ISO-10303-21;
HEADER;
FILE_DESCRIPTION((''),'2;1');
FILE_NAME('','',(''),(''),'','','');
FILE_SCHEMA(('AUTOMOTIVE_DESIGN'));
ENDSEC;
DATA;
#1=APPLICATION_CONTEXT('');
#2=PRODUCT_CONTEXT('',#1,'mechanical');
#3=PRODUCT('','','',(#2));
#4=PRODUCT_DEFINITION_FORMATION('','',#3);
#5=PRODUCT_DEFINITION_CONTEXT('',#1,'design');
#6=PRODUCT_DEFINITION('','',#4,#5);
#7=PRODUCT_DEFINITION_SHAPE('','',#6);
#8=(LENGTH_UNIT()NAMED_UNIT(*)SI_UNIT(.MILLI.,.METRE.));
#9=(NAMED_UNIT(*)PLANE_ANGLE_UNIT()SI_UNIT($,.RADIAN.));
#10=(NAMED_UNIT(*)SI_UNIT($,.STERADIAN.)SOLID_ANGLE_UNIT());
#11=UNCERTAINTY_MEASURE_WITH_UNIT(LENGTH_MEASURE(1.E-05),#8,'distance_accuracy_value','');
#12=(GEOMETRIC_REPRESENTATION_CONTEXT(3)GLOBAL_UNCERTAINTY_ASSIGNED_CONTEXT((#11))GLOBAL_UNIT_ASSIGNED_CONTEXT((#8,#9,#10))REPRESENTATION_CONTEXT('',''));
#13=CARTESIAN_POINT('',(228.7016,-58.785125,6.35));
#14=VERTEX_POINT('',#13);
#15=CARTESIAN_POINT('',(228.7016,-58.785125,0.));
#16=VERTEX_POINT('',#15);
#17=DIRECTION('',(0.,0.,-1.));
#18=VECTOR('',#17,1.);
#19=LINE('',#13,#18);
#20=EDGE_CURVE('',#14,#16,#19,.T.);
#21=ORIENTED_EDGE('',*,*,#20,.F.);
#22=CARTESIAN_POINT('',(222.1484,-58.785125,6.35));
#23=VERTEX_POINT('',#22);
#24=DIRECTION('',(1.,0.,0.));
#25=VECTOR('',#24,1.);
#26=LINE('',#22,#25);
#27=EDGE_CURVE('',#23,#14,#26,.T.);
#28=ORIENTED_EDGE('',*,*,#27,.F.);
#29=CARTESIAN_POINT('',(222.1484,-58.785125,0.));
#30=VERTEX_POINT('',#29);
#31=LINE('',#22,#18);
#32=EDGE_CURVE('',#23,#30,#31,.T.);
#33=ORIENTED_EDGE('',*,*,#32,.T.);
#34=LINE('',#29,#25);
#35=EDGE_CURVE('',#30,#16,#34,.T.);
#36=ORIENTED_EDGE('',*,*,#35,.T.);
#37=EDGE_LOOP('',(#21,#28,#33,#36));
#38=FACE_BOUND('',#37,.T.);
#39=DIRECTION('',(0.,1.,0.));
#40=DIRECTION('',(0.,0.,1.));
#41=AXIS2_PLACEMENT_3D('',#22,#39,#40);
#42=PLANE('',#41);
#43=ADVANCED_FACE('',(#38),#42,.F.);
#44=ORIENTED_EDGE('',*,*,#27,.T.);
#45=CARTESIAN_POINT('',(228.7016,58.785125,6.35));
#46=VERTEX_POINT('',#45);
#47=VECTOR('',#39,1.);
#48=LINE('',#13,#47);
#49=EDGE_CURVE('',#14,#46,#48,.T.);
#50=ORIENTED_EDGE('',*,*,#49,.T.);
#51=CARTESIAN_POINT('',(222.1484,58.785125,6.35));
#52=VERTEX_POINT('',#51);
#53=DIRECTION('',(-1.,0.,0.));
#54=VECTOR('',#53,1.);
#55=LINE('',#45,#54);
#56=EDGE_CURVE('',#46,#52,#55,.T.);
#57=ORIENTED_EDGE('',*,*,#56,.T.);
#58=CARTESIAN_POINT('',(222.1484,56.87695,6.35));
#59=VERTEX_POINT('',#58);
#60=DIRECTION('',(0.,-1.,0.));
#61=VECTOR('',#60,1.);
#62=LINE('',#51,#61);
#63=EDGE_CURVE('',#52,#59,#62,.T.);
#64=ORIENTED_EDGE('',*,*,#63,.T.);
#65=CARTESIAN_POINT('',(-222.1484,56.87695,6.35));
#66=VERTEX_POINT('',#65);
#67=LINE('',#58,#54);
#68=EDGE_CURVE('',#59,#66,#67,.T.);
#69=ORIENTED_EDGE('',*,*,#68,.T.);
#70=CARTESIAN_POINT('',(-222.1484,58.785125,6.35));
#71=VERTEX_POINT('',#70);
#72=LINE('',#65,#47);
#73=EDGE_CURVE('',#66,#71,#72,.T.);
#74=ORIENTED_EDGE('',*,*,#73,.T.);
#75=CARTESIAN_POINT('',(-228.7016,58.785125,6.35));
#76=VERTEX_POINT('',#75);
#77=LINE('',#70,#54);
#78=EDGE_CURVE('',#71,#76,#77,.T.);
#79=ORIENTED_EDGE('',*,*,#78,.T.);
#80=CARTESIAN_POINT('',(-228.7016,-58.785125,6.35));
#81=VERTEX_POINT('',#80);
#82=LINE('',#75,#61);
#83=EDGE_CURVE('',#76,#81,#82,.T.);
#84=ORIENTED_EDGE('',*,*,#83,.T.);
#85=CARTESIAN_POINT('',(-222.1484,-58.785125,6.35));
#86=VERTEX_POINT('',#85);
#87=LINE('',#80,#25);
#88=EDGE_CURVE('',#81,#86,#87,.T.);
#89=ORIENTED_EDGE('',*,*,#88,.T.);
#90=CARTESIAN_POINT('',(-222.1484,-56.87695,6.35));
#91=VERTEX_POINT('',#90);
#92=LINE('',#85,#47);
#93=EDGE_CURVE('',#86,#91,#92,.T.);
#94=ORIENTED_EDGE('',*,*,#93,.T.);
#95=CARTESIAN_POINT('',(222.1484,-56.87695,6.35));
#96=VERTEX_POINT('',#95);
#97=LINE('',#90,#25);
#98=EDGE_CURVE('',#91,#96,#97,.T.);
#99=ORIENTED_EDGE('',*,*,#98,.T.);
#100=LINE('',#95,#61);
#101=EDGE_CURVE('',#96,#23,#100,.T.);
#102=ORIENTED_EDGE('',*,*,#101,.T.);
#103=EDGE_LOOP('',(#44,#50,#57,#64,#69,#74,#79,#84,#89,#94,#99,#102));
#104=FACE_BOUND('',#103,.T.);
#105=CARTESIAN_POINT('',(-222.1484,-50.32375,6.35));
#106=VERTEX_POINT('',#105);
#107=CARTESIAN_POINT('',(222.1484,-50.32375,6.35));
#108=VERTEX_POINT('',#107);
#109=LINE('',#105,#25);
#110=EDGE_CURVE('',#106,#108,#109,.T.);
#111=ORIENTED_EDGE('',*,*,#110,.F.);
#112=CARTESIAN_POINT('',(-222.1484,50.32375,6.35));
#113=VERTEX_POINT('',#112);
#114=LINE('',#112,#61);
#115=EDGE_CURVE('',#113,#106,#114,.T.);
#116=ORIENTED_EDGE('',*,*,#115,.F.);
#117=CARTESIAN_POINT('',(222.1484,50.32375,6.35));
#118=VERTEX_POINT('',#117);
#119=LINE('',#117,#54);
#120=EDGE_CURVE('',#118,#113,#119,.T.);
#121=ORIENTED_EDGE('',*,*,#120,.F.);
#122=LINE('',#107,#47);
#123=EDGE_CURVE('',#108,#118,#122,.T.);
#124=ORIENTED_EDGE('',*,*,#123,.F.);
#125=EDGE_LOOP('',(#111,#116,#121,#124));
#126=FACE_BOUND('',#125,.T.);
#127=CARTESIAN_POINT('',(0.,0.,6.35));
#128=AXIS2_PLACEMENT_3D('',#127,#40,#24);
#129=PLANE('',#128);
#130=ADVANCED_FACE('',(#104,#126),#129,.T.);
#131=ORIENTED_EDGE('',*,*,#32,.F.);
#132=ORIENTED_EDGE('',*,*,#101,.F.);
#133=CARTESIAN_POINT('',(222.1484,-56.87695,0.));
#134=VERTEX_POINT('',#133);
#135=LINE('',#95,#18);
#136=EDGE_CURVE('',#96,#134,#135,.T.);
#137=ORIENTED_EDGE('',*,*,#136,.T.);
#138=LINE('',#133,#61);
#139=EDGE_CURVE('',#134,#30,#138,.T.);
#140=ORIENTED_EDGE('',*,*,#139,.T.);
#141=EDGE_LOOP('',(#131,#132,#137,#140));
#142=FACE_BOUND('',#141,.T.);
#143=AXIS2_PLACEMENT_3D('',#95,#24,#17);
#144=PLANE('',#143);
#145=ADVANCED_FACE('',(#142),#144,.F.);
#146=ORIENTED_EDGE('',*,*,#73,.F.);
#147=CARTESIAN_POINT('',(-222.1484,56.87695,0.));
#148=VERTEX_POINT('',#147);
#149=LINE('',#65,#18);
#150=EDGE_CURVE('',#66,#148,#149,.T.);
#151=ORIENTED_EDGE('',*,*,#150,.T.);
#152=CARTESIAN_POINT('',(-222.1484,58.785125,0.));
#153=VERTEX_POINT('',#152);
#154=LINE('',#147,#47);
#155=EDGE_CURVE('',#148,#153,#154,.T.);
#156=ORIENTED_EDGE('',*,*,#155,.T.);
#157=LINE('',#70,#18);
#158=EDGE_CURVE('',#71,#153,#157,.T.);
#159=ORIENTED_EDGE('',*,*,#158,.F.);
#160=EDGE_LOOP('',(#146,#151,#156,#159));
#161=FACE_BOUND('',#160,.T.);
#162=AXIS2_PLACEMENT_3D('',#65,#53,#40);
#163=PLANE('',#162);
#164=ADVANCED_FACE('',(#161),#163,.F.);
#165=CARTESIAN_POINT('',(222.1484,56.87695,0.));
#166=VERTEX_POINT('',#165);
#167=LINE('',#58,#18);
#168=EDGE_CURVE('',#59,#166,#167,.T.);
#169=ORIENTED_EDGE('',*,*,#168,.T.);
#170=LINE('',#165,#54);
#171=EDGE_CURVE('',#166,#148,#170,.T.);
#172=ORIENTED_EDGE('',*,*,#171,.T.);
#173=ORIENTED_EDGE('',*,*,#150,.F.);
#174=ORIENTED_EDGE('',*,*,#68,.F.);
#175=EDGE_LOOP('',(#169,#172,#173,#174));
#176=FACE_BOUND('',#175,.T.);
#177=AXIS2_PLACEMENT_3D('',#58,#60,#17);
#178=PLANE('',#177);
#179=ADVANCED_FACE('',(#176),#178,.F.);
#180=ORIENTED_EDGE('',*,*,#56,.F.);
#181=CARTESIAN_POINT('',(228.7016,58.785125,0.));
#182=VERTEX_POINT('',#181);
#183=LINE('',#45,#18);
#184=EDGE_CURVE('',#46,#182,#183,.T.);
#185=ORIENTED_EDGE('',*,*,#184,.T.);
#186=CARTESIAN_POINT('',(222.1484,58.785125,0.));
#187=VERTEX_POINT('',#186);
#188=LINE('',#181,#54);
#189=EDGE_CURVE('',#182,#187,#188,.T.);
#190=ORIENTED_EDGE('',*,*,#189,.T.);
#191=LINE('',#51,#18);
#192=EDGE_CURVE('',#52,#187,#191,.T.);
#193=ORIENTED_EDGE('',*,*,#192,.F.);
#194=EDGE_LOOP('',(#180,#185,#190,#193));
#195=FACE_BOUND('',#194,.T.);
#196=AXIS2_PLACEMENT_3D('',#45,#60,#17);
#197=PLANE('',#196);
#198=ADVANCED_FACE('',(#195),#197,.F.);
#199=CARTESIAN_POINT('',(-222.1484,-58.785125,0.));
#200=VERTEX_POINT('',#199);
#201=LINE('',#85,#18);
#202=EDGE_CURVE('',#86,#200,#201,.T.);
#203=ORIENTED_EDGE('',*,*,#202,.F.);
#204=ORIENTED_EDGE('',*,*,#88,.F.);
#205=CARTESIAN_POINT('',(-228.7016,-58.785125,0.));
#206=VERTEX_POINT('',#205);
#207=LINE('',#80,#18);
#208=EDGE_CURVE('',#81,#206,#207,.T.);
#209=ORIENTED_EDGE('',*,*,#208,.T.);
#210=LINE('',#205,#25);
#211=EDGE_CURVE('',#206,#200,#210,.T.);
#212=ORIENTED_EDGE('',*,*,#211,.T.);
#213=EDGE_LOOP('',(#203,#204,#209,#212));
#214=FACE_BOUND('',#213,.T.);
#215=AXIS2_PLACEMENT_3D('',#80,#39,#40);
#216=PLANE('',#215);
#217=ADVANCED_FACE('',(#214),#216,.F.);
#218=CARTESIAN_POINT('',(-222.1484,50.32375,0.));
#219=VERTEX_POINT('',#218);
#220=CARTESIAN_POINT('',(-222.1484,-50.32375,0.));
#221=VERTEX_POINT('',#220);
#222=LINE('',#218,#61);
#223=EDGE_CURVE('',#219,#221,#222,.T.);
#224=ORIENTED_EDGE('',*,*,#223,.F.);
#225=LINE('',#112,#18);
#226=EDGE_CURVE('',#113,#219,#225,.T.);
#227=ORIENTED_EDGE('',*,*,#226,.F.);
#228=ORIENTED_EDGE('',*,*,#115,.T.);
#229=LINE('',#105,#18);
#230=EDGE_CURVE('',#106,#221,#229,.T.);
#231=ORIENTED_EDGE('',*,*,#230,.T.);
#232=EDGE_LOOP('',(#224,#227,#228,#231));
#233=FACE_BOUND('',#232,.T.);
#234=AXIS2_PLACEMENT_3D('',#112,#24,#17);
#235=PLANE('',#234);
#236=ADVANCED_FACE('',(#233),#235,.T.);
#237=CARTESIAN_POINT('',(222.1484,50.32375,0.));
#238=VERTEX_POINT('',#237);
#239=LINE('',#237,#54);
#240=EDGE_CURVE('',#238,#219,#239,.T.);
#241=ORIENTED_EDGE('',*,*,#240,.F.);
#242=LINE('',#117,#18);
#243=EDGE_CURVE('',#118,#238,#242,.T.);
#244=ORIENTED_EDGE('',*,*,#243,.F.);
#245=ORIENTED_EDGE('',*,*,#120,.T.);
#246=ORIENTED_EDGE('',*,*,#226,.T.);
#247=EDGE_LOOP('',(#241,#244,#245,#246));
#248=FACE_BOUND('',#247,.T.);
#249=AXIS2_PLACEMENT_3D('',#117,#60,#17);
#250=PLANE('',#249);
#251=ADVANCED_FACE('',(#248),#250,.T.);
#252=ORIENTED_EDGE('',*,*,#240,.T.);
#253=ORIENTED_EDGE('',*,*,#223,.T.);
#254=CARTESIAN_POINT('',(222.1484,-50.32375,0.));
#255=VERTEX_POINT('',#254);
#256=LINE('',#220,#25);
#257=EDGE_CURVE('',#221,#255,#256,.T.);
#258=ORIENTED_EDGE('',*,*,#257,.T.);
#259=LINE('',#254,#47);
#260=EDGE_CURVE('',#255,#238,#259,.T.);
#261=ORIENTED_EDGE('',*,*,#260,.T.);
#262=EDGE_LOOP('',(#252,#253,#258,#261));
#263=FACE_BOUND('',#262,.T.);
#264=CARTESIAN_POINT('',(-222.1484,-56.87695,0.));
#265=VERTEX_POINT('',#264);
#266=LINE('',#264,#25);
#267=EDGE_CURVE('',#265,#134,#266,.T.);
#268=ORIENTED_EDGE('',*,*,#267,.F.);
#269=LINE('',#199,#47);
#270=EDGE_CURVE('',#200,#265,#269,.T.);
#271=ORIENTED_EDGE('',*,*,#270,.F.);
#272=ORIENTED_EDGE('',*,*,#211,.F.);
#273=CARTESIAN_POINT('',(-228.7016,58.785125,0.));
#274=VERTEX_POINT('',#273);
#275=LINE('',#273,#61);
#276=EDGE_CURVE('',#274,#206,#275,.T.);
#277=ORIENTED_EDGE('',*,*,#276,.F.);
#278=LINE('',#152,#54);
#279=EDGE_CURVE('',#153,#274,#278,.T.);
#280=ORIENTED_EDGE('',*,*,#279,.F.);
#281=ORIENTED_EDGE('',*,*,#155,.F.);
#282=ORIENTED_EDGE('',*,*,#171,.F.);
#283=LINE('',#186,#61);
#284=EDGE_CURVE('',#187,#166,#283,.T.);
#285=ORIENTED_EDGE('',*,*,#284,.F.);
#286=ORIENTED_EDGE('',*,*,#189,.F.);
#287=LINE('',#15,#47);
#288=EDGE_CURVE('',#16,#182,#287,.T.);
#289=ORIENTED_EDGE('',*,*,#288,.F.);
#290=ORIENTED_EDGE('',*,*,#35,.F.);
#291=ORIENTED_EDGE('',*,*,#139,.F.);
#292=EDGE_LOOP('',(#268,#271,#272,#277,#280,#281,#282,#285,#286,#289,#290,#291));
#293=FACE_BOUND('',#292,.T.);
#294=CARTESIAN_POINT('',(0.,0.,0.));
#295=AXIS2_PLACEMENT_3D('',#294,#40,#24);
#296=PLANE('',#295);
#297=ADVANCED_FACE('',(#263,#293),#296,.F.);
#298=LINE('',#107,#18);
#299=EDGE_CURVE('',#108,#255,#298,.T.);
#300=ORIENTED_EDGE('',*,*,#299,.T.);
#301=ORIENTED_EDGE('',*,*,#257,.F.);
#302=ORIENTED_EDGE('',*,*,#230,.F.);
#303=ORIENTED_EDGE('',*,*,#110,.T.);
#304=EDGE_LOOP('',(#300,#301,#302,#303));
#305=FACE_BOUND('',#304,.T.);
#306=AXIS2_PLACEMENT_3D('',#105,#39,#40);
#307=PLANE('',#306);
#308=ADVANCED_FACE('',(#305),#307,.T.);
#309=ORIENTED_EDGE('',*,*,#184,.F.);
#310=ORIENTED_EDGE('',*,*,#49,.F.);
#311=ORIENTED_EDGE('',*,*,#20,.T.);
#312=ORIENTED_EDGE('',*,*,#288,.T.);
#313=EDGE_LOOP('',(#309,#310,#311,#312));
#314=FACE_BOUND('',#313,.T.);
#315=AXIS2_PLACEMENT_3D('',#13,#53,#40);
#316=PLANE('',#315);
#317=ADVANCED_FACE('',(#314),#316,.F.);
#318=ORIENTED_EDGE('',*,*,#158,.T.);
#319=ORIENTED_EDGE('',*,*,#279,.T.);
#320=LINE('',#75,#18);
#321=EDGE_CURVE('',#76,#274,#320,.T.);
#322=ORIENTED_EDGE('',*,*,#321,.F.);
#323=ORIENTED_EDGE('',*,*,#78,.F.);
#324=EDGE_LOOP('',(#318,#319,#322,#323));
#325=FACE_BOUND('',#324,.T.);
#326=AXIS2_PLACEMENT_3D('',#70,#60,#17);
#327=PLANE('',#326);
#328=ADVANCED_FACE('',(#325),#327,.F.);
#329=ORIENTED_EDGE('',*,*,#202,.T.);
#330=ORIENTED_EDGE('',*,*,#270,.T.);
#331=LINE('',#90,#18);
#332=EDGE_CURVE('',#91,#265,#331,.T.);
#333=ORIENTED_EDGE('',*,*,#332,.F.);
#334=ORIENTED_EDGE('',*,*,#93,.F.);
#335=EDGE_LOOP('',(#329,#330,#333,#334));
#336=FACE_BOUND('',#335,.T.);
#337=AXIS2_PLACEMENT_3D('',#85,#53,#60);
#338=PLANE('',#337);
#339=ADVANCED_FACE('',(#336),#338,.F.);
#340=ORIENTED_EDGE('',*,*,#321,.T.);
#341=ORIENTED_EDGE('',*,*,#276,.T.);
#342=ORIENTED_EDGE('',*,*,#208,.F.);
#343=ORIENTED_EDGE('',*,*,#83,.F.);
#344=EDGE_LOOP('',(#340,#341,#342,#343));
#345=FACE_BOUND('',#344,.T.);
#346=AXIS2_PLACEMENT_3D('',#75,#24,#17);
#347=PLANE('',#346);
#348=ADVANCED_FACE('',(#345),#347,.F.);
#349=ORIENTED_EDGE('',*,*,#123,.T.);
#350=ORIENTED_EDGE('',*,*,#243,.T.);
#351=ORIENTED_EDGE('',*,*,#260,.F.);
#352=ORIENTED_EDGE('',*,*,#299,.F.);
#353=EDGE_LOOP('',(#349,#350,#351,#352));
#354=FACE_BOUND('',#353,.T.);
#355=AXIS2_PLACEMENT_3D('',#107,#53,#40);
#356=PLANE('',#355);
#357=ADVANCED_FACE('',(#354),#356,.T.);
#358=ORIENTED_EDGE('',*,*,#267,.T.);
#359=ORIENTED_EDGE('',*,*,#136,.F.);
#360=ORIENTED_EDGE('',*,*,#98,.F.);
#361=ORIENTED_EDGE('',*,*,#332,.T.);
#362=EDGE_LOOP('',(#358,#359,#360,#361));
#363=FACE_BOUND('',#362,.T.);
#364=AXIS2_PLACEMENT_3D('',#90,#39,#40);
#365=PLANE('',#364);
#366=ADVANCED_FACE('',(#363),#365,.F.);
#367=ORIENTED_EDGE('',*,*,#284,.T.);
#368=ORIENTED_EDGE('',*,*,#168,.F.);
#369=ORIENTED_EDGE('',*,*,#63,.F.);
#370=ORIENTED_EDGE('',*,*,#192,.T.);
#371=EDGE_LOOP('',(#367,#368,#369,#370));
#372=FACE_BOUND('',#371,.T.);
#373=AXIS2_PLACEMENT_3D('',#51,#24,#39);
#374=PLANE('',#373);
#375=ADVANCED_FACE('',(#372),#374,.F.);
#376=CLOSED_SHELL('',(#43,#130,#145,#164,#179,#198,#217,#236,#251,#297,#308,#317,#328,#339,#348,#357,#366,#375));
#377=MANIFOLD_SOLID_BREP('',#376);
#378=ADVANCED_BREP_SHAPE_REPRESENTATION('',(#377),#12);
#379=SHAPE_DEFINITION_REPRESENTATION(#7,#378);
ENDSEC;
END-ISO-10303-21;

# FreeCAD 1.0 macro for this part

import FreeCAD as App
import Part
import Sketcher
from FreeCAD import Vector
Q = App.Units.Quantity


def add_polygon(sketch, points):
    """Adds a closed chain of lines whose ends are joined by coincident constraints."""
    first, n = sketch.GeometryCount, len(points)
    for a, b in zip(points, points[1:] + points[:1]):
        sketch.addGeometry(Part.LineSegment(App.Vector(*a, 0), App.Vector(*b, 0)), False)
    for i in range(n):
        sketch.addConstraint(Sketcher.Constraint("Coincident", first + i, 2, first + (i + 1) % n, 1))

doc = App.newDocument("Part")
body = doc.addObject("PartDesign::Body", "Body")

sketch1 = body.newObject("Sketcher::SketchObject", "Sketch")
sketch1.AttachmentSupport = (doc.getObject("XY_Plane"), [""])
sketch1.MapMode = "FlatFace"
add_polygon(sketch1, [(222.1, -58.8), (228.7, -58.8), (228.7, 58.8), (222.1, 58.8), (222.1, 56.9), (-222.1, 56.9), (-222.1, 58.8), (-228.7, 58.8), (-228.7, -58.8), (-222.1, -58.8), (-222.1, -56.9), (222.1, -56.9)])
add_polygon(sketch1, [(222.1, -50.3), (-222.1, -50.3), (-222.1, 50.3), (222.1, 50.3)])
sketch1.addConstraint([
    Sketcher.Constraint("Horizontal", 0),
    Sketcher.Constraint("Vertical", 1),
    Sketcher.Constraint("Horizontal", 2),
    Sketcher.Constraint("Vertical", 3),
    Sketcher.Constraint("Horizontal", 4),
    Sketcher.Constraint("Vertical", 5),
    Sketcher.Constraint("Horizontal", 6),
    Sketcher.Constraint("Vertical", 7),
    Sketcher.Constraint("Horizontal", 8),
    Sketcher.Constraint("Vertical", 9),
    Sketcher.Constraint("Horizontal", 10),
    Sketcher.Constraint("Vertical", 11),
    Sketcher.Constraint("Horizontal", 12),
    Sketcher.Constraint("Vertical", 13),
    Sketcher.Constraint("Horizontal", 14),
    Sketcher.Constraint("Vertical", 15),
    Sketcher.Constraint("Symmetric", 0, 2, 6, 2, -1, 1),
    Sketcher.Constraint("Symmetric", 2, 2, 8, 2, -1, 1),
    Sketcher.Constraint("Symmetric", 4, 2, 10, 2, -1, 1),
    Sketcher.Constraint("Symmetric", 12, 2, 14, 2, -1, 1),
    Sketcher.Constraint("Symmetric", 2, 2, 5, 2, -2),
    Sketcher.Constraint("Vertical", 9, 2, 12, 2),
    Sketcher.Constraint("DistanceX", 0, 1, 0, 2, Q("0.258 in")),
    Sketcher.Constraint("DistanceX", 4, 2, 4, 1, Q("17.492 in")),
    Sketcher.Constraint("DistanceY", 13, 1, 13, 2, Q("3.9625 in")),
    Sketcher.Constraint("DistanceY", 9, 2, 12, 2, Q("0.258 in")),
    Sketcher.Constraint("DistanceY", 1, 1, 1, 2, Q("117.57025 mm")),
])
pad1 = body.newObject("PartDesign::Pad", "Pad")
pad1.Profile = sketch1
pad1.Length = Q("0.25 in")

doc.recompute()
